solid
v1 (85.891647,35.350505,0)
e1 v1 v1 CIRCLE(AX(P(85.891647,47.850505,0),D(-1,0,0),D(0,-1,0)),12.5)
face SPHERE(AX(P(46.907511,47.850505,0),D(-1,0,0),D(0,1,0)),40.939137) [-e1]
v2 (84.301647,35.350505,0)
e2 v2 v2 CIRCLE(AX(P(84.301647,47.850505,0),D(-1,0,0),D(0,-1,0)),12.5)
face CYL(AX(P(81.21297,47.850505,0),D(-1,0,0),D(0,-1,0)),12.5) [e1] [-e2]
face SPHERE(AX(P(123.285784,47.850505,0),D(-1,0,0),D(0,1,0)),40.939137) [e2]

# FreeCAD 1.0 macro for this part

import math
import FreeCAD as App
import Part
import Sketcher

V = App.Vector

doc = App.newDocument("Part")
body = doc.addObject("PartDesign::Body", "Body")

# Sketch on XY plane
sketch1 = body.newObject("Sketcher::SketchObject", "Sketch")
sketch1.AttachmentSupport = (doc.getObject("XY_Plane"), [""])
sketch1.MapMode = "FlatFace"
sketch1.addGeometry(Part.LineSegment(V(85.9, 60.4, 0), V(84.3, 60.4, 0)), False)
sketch1.addGeometry(Part.ArcOfCircle(Part.Circle(V(123.3, 47.9, 0), V(0, 0, 1), 40.9), math.radians(162.22), math.radians(180)), False)
sketch1.addGeometry(Part.LineSegment(V(82.3, 47.9, 0), V(87.8, 47.9, 0)), False)
sketch1.addGeometry(Part.ArcOfCircle(Part.Circle(V(46.9, 47.9, 0), V(0, 0, 1), 40.9), math.radians(0), math.radians(17.78)), False)
sketch1.addGeometry(Part.LineSegment(V(46.9, 47.9, 0), V(123.3, 47.9, 0)), True)  # axis
sketch1.addConstraint(Sketcher.Constraint("Coincident", 0, 2, 1, 1))
sketch1.addConstraint(Sketcher.Constraint("Coincident", 1, 2, 2, 1))
sketch1.addConstraint(Sketcher.Constraint("Coincident", 2, 2, 3, 1))
sketch1.addConstraint(Sketcher.Constraint("Coincident", 3, 2, 0, 1))
sketch1.addConstraint(Sketcher.Constraint("Horizontal", 0))
sketch1.addConstraint(Sketcher.Constraint("Horizontal", 2))
sketch1.addConstraint(Sketcher.Constraint("Horizontal", 4))
sketch1.addConstraint(Sketcher.Constraint("Coincident", 4, 1, 3, 3))
sketch1.addConstraint(Sketcher.Constraint("Coincident", 4, 2, 1, 3))
sketch1.addConstraint(Sketcher.Constraint("Equal", 1, 3))
sketch1.addConstraint(Sketcher.Constraint("Horizontal", 3, 3, 1, 2))
sketch1.addConstraint(Sketcher.Constraint("DistanceX", 2, 1, 2, 2, 5.5))
sketch1.addConstraint(Sketcher.Constraint("DistanceX", 0, 2, 0, 1, 1.59))
sketch1.addConstraint(Sketcher.Constraint("DistanceY", 3, 3, 0, 2, 12.5))
sketch1.addConstraint(Sketcher.Constraint("DistanceX", -1, 1, 3, 3, 46.907511))
sketch1.addConstraint(Sketcher.Constraint("DistanceY", -1, 1, 1, 3, 47.850505))
revolution = body.newObject("PartDesign::Revolution", "Revolution")
revolution.Profile = sketch1
revolution.ReferenceAxis = (sketch1, ["Axis0"])
revolution.Angle = 360

doc.recompute()
